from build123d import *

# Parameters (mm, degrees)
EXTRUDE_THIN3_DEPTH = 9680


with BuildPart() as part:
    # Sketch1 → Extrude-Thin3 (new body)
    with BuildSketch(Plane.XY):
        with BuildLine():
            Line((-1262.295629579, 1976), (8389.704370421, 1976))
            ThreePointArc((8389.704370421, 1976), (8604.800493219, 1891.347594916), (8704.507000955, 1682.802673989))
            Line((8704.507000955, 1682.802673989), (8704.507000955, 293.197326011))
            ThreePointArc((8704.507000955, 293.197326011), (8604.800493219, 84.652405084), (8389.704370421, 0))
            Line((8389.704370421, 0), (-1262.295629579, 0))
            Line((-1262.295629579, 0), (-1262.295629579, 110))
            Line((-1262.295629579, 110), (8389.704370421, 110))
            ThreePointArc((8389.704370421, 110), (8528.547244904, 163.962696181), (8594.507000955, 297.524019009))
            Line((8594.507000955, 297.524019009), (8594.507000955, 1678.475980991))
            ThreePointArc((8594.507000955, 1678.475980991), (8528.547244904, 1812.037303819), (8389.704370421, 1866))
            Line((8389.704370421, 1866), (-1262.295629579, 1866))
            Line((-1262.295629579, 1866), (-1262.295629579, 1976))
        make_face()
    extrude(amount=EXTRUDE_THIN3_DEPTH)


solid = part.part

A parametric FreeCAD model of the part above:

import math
import FreeCAD as App
import Part
import Sketcher
from FreeCAD import Vector

doc = App.newDocument("Part")
params = doc.addObject("Spreadsheet::Sheet", "Params")
for row, (alias, value) in enumerate([
    ("sketch1_width", "9652 mm"),
    ("sketch1_height", "110 mm"),
    ("pad1_length", "9680 mm"),
], start=1):
    params.set(f"A{row}", alias)
    params.set(f"B{row}", "=" + value)
    params.setAlias(f"B{row}", alias)

body = doc.addObject("PartDesign::Body", "Body")

# Sketch on XY plane
sketch1 = body.newObject("Sketcher::SketchObject", "Sketch")
sketch1.AttachmentSupport = (doc.getObject("XY_Plane"), [""])
sketch1.MapMode = "FlatFace"
sketch1.addGeometry([
    Part.LineSegment(Vector(8390, 1976, 0), Vector(-1262, 1976, 0)),  # 0
    Part.LineSegment(Vector(-1262, 1976, 0), Vector(-1262, 1866, 0)),  # 1
    Part.LineSegment(Vector(-1262, 1866, 0), Vector(8390, 1866, 0)),  # 2
    Part.ArcOfCircle(Part.Circle(Vector(8390, 1660, 0), Vector(0, 0, 1), 206), math.radians(5), math.radians(90)),  # 3
    Part.LineSegment(Vector(8595, 1678, 0), Vector(8595, 298, 0)),  # 4
    Part.ArcOfCircle(Part.Circle(Vector(8390, 316, 0), Vector(0, 0, 1), 206), math.radians(-90), math.radians(-5)),  # 5
    Part.LineSegment(Vector(8390, 110, 0), Vector(-1262, 110, 0)),  # 6
    Part.LineSegment(Vector(-1262, 110, 0), Vector(-1262, 0, 0)),  # 7
    Part.LineSegment(Vector(-1262, 0, 0), Vector(8390, 0, 0)),  # 8
    Part.ArcOfCircle(Part.Circle(Vector(8390, 316, 0), Vector(0, 0, 1), 316), math.radians(-90), math.radians(-4)),  # 9
    Part.LineSegment(Vector(8705, 293, 0), Vector(8705, 1683, 0)),  # 10
    Part.ArcOfCircle(Part.Circle(Vector(8390, 1660, 0), Vector(0, 0, 1), 316), math.radians(4), math.radians(90)),  # 11
], False)
sketch1.addConstraint([
    Sketcher.Constraint("Coincident", 0, 2, 1, 1),
    Sketcher.Constraint("Coincident", 1, 2, 2, 1),
    Sketcher.Constraint("Tangent", 2, 2, 3, 2),
    Sketcher.Constraint("Coincident", 3, 1, 4, 1),
    Sketcher.Constraint("Coincident", 4, 2, 5, 2),
    Sketcher.Constraint("Tangent", 5, 1, 6, 1),
    Sketcher.Constraint("Coincident", 6, 2, 7, 1),
    Sketcher.Constraint("Coincident", 7, 2, 8, 1),
    Sketcher.Constraint("Tangent", 8, 2, 9, 1),
    Sketcher.Constraint("Coincident", 9, 2, 10, 1),
    Sketcher.Constraint("Coincident", 10, 2, 11, 1),
    Sketcher.Constraint("Tangent", 11, 2, 0, 1),
    Sketcher.Constraint("Horizontal", 0),
    Sketcher.Constraint("Vertical", 1),
    Sketcher.Constraint("Horizontal", 2),
    Sketcher.Constraint("Vertical", 4),
    Sketcher.Constraint("Horizontal", 6),
    Sketcher.Constraint("Vertical", 7),
    Sketcher.Constraint("Horizontal", 8),
    Sketcher.Constraint("Vertical", 10),
    Sketcher.Constraint("Coincident", 9, 3, 5, 3),
    Sketcher.Constraint("Coincident", 11, 3, 3, 3),
    Sketcher.Constraint("Equal", 3, 5),
    Sketcher.Constraint("Equal", 9, 11),
    Sketcher.Constraint("PointOnObject", 7, 2, -1),
    Sketcher.Constraint("Vertical", 3, 3, 5, 3),
    Sketcher.Constraint("Vertical", 1, 2, 6, 2),
    Sketcher.Constraint("DistanceX", 0, 2, 0, 1, 9652.0),
    Sketcher.Constraint("DistanceY", 1, 2, 1, 1, 110.0),
    Sketcher.Constraint("DistanceY", -1, 1, 0, 2, 1976.0),
    Sketcher.Constraint("DistanceX", 4, 2, 9, 2, 110.0),
    Sketcher.Constraint("DistanceX", -1, 1, 3, 1, 8594.507001),
    Sketcher.Constraint("Radius", 3, 205.598663),
    Sketcher.Constraint("DistanceY", 4, 2, 4, 1, 1380.951962),
])
sketch1.setExpression("Constraints[27]", "Params.sketch1_width")
sketch1.setExpression("Constraints[28]", "Params.sketch1_height")
pad1 = body.newObject("PartDesign::Pad", "Pad")
pad1.Profile = sketch1
pad1.setExpression("Length", "Params.pad1_length")

doc.recompute()
